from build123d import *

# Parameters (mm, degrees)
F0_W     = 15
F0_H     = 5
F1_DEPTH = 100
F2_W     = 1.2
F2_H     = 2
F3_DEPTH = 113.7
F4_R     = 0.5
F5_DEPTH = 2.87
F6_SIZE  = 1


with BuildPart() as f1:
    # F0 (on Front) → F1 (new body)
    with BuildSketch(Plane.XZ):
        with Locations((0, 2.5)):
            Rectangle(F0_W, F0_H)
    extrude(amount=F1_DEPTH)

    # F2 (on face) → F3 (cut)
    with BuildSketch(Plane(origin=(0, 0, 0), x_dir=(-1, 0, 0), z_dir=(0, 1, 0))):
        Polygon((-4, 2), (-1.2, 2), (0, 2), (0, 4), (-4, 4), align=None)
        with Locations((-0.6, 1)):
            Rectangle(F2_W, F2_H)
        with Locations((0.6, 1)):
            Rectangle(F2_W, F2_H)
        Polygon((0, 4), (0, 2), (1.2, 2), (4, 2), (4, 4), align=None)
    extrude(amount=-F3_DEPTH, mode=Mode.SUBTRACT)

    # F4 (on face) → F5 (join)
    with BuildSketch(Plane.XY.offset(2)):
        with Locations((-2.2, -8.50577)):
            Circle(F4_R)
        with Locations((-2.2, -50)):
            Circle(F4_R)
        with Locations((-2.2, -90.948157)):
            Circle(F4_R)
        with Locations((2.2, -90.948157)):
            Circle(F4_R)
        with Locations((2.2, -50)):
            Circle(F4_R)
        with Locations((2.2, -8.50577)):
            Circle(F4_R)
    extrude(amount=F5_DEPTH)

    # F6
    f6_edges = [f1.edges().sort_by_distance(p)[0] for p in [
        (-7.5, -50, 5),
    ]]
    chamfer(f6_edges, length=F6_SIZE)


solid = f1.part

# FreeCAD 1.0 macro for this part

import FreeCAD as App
import Part
import Sketcher

V = App.Vector


def edges_at(feature, points):
    """Names of the edges that pass closest to the given points."""
    edges = feature.Shape.Edges
    near = lambda p: min(range(len(edges)), key=lambda i: edges[i].distToShape(Part.Vertex(*p))[0])
    return sorted({f"Edge{near(p) + 1}" for p in points})

doc = App.newDocument("Part")
body = doc.addObject("PartDesign::Body", "Body")

# Sketch on XZ plane
sketch1 = body.newObject("Sketcher::SketchObject", "Sketch")
sketch1.AttachmentSupport = (doc.getObject("XZ_Plane"), [""])
sketch1.MapMode = "FlatFace"
sketch1.addGeometry(Part.LineSegment(V(-8, 5, 0), V(-8, 0, 0)), False)
sketch1.addGeometry(Part.LineSegment(V(-8, 0, 0), V(8, 0, 0)), False)
sketch1.addGeometry(Part.LineSegment(V(8, 0, 0), V(8, 5, 0)), False)
sketch1.addGeometry(Part.LineSegment(V(8, 5, 0), V(-8, 5, 0)), False)
sketch1.addConstraint(Sketcher.Constraint("Coincident", 0, 2, 1, 1))
sketch1.addConstraint(Sketcher.Constraint("Coincident", 1, 2, 2, 1))
sketch1.addConstraint(Sketcher.Constraint("Coincident", 2, 2, 3, 1))
sketch1.addConstraint(Sketcher.Constraint("Coincident", 3, 2, 0, 1))
sketch1.addConstraint(Sketcher.Constraint("Vertical", 0))
sketch1.addConstraint(Sketcher.Constraint("Horizontal", 1))
sketch1.addConstraint(Sketcher.Constraint("Vertical", 2))
sketch1.addConstraint(Sketcher.Constraint("Horizontal", 3))
sketch1.addConstraint(Sketcher.Constraint("Symmetric", 0, 2, 1, 2, -1, 1))
sketch1.addConstraint(Sketcher.Constraint("DistanceX", 1, 1, 1, 2, 15.0))
sketch1.addConstraint(Sketcher.Constraint("DistanceY", 0, 2, 0, 1, 5.0))
pad1 = body.newObject("PartDesign::Pad", "Pad")
pad1.Profile = sketch1
pad1.Length = 100

# Sketch on XZ plane
sketch2 = body.newObject("Sketcher::SketchObject", "Sketch001")
sketch2.AttachmentSupport = (doc.getObject("XZ_Plane"), [""])
sketch2.MapMode = "FlatFace"
sketch2.addGeometry(Part.LineSegment(V(4, 2, 0), V(1.2, 2, 0)), False)
sketch2.addGeometry(Part.LineSegment(V(1.2, 2, 0), V(1.2, 0, 0)), False)
sketch2.addGeometry(Part.LineSegment(V(1.2, 0, 0), V(-1.2, 0, 0)), False)
sketch2.addGeometry(Part.LineSegment(V(-1.2, 0, 0), V(-1.2, 2, 0)), False)
sketch2.addGeometry(Part.LineSegment(V(-1.2, 2, 0), V(-4, 2, 0)), False)
sketch2.addGeometry(Part.LineSegment(V(-4, 2, 0), V(-4, 4, 0)), False)
sketch2.addGeometry(Part.LineSegment(V(-4, 4, 0), V(4, 4, 0)), False)
sketch2.addGeometry(Part.LineSegment(V(4, 4, 0), V(4, 2, 0)), False)
sketch2.addConstraint(Sketcher.Constraint("Coincident", 0, 2, 1, 1))
sketch2.addConstraint(Sketcher.Constraint("Coincident", 1, 2, 2, 1))
sketch2.addConstraint(Sketcher.Constraint("Coincident", 2, 2, 3, 1))
sketch2.addConstraint(Sketcher.Constraint("Coincident", 3, 2, 4, 1))
sketch2.addConstraint(Sketcher.Constraint("Coincident", 4, 2, 5, 1))
sketch2.addConstraint(Sketcher.Constraint("Coincident", 5, 2, 6, 1))
sketch2.addConstraint(Sketcher.Constraint("Coincident", 6, 2, 7, 1))
sketch2.addConstraint(Sketcher.Constraint("Coincident", 7, 2, 0, 1))
sketch2.addConstraint(Sketcher.Constraint("Horizontal", 0))
sketch2.addConstraint(Sketcher.Constraint("Vertical", 1))
sketch2.addConstraint(Sketcher.Constraint("Horizontal", 2))
sketch2.addConstraint(Sketcher.Constraint("Vertical", 3))
sketch2.addConstraint(Sketcher.Constraint("Horizontal", 4))
sketch2.addConstraint(Sketcher.Constraint("Vertical", 5))
sketch2.addConstraint(Sketcher.Constraint("Horizontal", 6))
sketch2.addConstraint(Sketcher.Constraint("Vertical", 7))
sketch2.addConstraint(Sketcher.Constraint("Symmetric", 1, 2, 2, 2, -1, 1))
sketch2.addConstraint(Sketcher.Constraint("Symmetric", 4, 2, 7, 2, -2))
sketch2.addConstraint(Sketcher.Constraint("Equal", 3, 5))
sketch2.addConstraint(Sketcher.Constraint("DistanceX", 6, 1, 6, 2, 8.0))
sketch2.addConstraint(Sketcher.Constraint("DistanceY", 1, 2, 1, 1, 2.0))
sketch2.addConstraint(Sketcher.Constraint("DistanceX", 0, 2, 0, 1, 2.8))
pocket1 = body.newObject("PartDesign::Pocket", "Pocket")
pocket1.Profile = sketch2
pocket1.Length = 113.7
pocket1.Reversed = True

# Sketch on XY plane
sketch3 = body.newObject("Sketcher::SketchObject", "Sketch002")
sketch3.AttachmentSupport = (doc.getObject("XY_Plane"), [""])
sketch3.MapMode = "FlatFace"
sketch3.AttachmentOffset = App.Placement(V(0, 0, 2), App.Rotation())
sketch3.addGeometry(Part.Circle(V(-2.2, -8.5, 0), V(0, 0, 1), 0.5), False)
sketch3.addGeometry(Part.Circle(V(-2.2, -50, 0), V(0, 0, 1), 0.5), False)
sketch3.addGeometry(Part.Circle(V(-2.2, -90.9, 0), V(0, 0, 1), 0.5), False)
sketch3.addGeometry(Part.Circle(V(2.2, -90.9, 0), V(0, 0, 1), 0.5), False)
sketch3.addGeometry(Part.Circle(V(2.2, -50, 0), V(0, 0, 1), 0.5), False)
sketch3.addGeometry(Part.Circle(V(2.2, -8.5, 0), V(0, 0, 1), 0.5), False)
sketch3.addConstraint(Sketcher.Constraint("Equal", 0, 1))
sketch3.addConstraint(Sketcher.Constraint("Equal", 1, 2))
sketch3.addConstraint(Sketcher.Constraint("Equal", 2, 3))
sketch3.addConstraint(Sketcher.Constraint("Equal", 3, 4))
sketch3.addConstraint(Sketcher.Constraint("Equal", 4, 5))
sketch3.addConstraint(Sketcher.Constraint("Symmetric", 2, 3, 3, 3, -2))
sketch3.addConstraint(Sketcher.Constraint("Symmetric", 1, 3, 4, 3, -2))
sketch3.addConstraint(Sketcher.Constraint("Symmetric", 0, 3, 5, 3, -2))
sketch3.addConstraint(Sketcher.Constraint("Vertical", 0, 3, 1, 3))
sketch3.addConstraint(Sketcher.Constraint("Vertical", 1, 3, 2, 3))
sketch3.addConstraint(Sketcher.Constraint("Diameter", 0, 1.0))
sketch3.addConstraint(Sketcher.Constraint("DistanceY", 1, 3, -1, 1, 50.0))
sketch3.addConstraint(Sketcher.Constraint("DistanceX", 0, 3, -1, 1, 2.2))
sketch3.addConstraint(Sketcher.Constraint("DistanceY", 0, 3, -1, 1, 8.50577))
sketch3.addConstraint(Sketcher.Constraint("DistanceY", 2, 3, -1, 1, 90.948157))
pad2 = body.newObject("PartDesign::Pad", "Pad001")
pad2.Profile = sketch3
pad2.Length = 2.87
doc.recompute()

chamfer = body.newObject("PartDesign::Chamfer", "Chamfer")
chamfer.Base = (pad2, edges_at(pad2, [(-7.5, -50, 5)]))
chamfer.Size = 1

doc.recompute()
